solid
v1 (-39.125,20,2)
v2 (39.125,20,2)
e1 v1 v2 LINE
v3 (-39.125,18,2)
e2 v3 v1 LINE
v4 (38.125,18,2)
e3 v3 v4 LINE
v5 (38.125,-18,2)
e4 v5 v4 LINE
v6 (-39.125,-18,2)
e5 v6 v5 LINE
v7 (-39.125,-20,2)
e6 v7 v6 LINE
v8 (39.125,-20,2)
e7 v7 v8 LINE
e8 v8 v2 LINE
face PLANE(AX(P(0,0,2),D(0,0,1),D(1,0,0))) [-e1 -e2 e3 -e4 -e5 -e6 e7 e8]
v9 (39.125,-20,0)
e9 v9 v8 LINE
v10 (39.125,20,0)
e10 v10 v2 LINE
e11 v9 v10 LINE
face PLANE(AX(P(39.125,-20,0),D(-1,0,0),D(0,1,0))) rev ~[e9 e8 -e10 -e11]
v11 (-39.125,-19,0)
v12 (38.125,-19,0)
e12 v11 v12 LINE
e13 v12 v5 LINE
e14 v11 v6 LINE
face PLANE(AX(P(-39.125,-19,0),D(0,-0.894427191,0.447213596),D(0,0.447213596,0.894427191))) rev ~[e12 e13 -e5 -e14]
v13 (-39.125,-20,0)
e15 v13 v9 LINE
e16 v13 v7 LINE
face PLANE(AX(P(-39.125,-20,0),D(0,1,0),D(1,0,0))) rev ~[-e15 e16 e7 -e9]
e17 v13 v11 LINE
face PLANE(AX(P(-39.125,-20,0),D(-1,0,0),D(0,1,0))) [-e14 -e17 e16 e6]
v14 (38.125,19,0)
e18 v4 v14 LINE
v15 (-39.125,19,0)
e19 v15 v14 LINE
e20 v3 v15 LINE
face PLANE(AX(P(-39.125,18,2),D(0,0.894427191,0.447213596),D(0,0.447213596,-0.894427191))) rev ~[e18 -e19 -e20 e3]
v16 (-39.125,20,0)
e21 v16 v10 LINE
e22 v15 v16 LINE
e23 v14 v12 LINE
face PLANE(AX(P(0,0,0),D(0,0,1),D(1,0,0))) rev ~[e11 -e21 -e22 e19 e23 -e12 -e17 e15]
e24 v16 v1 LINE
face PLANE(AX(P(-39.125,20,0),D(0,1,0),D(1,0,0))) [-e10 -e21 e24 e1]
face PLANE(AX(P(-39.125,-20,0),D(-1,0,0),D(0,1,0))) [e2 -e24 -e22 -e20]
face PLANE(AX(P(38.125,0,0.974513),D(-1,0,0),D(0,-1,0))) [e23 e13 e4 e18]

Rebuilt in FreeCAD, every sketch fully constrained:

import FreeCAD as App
import Part
import Sketcher

V = App.Vector


def add_polygon(sketch, points):
    """Adds a closed chain of lines whose ends are joined by coincident constraints."""
    first, n = sketch.GeometryCount, len(points)
    for a, b in zip(points, points[1:] + points[:1]):
        sketch.addGeometry(Part.LineSegment(App.Vector(*a, 0), App.Vector(*b, 0)), False)
    for i in range(n):
        sketch.addConstraint(Sketcher.Constraint("Coincident", first + i, 2, first + (i + 1) % n, 1))

doc = App.newDocument("Part")
params = doc.addObject("Spreadsheet::Sheet", "Params")
for row, (alias, value) in enumerate([
    ("sketch1_height", "40 mm"),
    ("sketch1_width", "78.25 mm"),
    ("pad1_length", "2 mm"),
    ("sketch2_width", "36 mm"),
    ("sketch2_width2", "38 mm"),
    ("pocket1_length", "77.25 mm"),
], start=1):
    params.set(f"A{row}", alias)
    params.set(f"B{row}", "=" + value)
    params.setAlias(f"B{row}", alias)

body = doc.addObject("PartDesign::Body", "Body")

# Sketch on XY plane
sketch1 = body.newObject("Sketcher::SketchObject", "Sketch")
sketch1.AttachmentSupport = (doc.getObject("XY_Plane"), [""])
sketch1.MapMode = "FlatFace"
add_polygon(sketch1, [(-39, 20), (-39, -20), (39, -20), (39, 20)])  # lines 0-3
sketch1.addConstraint(Sketcher.Constraint("Vertical", 0))
sketch1.addConstraint(Sketcher.Constraint("Horizontal", 1))
sketch1.addConstraint(Sketcher.Constraint("Vertical", 2))
sketch1.addConstraint(Sketcher.Constraint("Horizontal", 3))
sketch1.addConstraint(Sketcher.Constraint("Symmetric", 0, 2, 2, 2, -1, 1))
sketch1.addConstraint(Sketcher.Constraint("DistanceY", 0, 2, 0, 1, 40.0))
sketch1.addConstraint(Sketcher.Constraint("DistanceX", 1, 1, 1, 2, 78.25))
sketch1.setExpression("Constraints[9]", "Params.sketch1_height")
sketch1.setExpression("Constraints[10]", "Params.sketch1_width")
pad1 = body.newObject("PartDesign::Pad", "Pad")
pad1.Profile = sketch1
pad1.setExpression("Length", "Params.pad1_length")

# Sketch on YZ plane
sketch2 = body.newObject("Sketcher::SketchObject", "Sketch001")
sketch2.AttachmentSupport = (doc.getObject("YZ_Plane"), [""])
sketch2.MapMode = "FlatFace"
sketch2.AttachmentOffset = App.Placement(V(0, 0, -39.125), App.Rotation())
add_polygon(sketch2, [(-18, 2), (18, 2), (19, 0), (-19, 0)])  # lines 0-3
sketch2.addConstraint(Sketcher.Constraint("Horizontal", 0))
sketch2.addConstraint(Sketcher.Constraint("Horizontal", 2))
sketch2.addConstraint(Sketcher.Constraint("Symmetric", 1, 2, 2, 2, -1, 1))
sketch2.addConstraint(Sketcher.Constraint("Equal", 1, 3))
sketch2.addConstraint(Sketcher.Constraint("DistanceX", 0, 1, 0, 2, 36.0))
sketch2.addConstraint(Sketcher.Constraint("DistanceX", 2, 2, 2, 1, 38.0))
sketch2.addConstraint(Sketcher.Constraint("DistanceY", -1, 1, 0, 2, 2.0))
sketch2.setExpression("Constraints[8]", "Params.sketch2_width")
sketch2.setExpression("Constraints[9]", "Params.sketch2_width2")
pocket1 = body.newObject("PartDesign::Pocket", "Pocket")
pocket1.Profile = sketch2
pocket1.setExpression("Length", "Params.pocket1_length")
pocket1.Reversed = True

doc.recompute()
